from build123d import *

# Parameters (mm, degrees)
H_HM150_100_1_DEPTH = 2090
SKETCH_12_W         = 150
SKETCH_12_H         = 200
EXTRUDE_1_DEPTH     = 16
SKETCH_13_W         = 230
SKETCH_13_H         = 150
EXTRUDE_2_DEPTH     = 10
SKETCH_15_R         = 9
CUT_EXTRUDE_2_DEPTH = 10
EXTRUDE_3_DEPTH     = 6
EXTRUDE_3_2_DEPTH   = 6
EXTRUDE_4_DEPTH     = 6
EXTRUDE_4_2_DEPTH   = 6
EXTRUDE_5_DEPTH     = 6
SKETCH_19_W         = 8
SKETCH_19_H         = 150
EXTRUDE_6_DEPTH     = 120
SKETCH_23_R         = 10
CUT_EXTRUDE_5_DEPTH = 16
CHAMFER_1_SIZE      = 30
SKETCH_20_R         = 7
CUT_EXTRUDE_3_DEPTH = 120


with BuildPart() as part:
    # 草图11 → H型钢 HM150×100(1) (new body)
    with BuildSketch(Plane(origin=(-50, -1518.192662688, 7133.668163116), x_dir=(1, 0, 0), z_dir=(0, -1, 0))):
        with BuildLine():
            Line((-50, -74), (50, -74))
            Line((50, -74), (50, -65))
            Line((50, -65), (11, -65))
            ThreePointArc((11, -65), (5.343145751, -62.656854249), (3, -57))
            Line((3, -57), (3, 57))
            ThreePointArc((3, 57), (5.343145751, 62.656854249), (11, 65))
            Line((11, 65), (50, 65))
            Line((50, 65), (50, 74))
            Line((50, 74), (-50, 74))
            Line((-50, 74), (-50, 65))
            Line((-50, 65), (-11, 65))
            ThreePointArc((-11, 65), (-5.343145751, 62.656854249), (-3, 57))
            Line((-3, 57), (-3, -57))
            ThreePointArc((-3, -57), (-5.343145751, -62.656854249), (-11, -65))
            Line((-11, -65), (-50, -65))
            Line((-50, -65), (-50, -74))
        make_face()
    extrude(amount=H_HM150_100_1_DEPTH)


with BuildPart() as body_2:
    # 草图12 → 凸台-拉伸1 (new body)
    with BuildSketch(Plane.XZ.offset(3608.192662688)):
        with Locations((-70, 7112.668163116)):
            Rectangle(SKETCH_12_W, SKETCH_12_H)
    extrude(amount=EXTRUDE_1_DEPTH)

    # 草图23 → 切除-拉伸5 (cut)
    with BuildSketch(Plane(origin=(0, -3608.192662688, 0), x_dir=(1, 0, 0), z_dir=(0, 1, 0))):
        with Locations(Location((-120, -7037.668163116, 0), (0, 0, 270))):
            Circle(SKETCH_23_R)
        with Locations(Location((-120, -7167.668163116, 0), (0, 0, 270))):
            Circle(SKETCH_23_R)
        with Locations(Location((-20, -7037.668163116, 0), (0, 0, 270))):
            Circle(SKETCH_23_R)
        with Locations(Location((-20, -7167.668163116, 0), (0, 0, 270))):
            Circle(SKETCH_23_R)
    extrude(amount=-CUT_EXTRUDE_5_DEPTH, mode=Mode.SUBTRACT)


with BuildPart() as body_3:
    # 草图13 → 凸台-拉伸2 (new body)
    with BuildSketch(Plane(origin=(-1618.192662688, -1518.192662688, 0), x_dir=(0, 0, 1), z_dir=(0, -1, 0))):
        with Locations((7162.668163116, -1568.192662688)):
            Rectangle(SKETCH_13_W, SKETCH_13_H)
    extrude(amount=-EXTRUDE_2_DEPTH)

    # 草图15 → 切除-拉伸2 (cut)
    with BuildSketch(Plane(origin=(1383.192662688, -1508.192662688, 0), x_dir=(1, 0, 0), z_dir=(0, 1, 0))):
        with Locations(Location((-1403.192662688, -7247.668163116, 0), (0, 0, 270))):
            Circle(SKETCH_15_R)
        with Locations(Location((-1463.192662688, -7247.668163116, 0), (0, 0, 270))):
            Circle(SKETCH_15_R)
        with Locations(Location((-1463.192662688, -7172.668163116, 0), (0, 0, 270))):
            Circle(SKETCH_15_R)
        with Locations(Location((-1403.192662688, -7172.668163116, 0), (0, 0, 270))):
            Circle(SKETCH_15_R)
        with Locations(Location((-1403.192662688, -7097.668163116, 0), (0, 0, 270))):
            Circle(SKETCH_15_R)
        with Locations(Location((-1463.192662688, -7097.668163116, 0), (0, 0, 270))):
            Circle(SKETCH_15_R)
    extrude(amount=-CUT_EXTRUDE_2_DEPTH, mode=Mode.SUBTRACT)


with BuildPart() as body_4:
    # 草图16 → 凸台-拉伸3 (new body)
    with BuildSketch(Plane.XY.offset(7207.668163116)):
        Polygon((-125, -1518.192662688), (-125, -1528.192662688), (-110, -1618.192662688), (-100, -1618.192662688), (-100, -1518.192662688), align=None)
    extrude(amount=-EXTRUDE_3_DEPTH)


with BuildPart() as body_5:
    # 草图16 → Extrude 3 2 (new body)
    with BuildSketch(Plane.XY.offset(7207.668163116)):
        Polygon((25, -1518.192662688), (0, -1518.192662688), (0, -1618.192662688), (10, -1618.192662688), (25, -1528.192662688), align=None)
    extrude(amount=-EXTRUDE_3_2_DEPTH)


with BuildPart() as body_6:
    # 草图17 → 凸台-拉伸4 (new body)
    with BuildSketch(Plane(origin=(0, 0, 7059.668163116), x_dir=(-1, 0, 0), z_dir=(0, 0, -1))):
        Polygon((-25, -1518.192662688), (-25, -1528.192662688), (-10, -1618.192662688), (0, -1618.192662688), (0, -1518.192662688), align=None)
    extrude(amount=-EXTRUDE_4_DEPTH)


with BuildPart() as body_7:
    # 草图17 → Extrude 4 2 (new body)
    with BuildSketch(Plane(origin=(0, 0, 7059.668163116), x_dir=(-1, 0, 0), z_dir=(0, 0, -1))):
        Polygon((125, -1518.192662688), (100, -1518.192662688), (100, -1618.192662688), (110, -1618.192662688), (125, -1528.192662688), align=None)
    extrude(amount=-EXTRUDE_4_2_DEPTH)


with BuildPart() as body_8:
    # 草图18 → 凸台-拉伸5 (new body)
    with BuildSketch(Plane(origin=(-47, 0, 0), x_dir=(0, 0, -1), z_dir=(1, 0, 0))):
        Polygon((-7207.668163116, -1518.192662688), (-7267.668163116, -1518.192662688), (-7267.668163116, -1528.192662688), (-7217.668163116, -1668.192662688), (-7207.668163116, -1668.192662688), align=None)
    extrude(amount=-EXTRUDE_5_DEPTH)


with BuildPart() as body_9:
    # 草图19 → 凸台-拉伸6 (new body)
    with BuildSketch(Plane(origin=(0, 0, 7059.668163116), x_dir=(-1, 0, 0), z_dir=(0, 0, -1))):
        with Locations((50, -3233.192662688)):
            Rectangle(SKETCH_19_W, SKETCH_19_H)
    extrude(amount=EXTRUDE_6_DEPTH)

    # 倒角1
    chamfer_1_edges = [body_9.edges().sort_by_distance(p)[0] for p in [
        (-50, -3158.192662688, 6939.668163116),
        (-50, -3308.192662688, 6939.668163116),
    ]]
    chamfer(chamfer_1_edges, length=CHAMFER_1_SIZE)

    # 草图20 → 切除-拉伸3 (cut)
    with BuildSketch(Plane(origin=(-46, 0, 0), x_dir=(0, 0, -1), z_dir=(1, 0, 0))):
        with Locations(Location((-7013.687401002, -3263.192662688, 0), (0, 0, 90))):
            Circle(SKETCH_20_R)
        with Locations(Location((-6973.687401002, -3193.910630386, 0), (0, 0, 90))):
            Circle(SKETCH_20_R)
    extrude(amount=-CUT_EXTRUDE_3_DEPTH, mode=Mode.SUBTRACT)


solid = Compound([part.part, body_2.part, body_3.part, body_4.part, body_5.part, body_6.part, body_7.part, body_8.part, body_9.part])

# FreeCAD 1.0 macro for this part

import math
import FreeCAD as App
import Part
import Sketcher


def edges_at(feature, points):
    """Names of the edges that pass closest to the given points."""
    edges = feature.Shape.Edges
    near = lambda p: min(range(len(edges)), key=lambda i: edges[i].distToShape(Part.Vertex(*p))[0])
    return sorted({f"Edge{near(p) + 1}" for p in points})


def add_polygon(sketch, points):
    """Adds a closed chain of lines whose ends are joined by coincident constraints."""
    first, n = sketch.GeometryCount, len(points)
    for a, b in zip(points, points[1:] + points[:1]):
        sketch.addGeometry(Part.LineSegment(App.Vector(*a, 0), App.Vector(*b, 0)), False)
    for i in range(n):
        sketch.addConstraint(Sketcher.Constraint("Coincident", first + i, 2, first + (i + 1) % n, 1))

doc = App.newDocument("Part")
body = doc.addObject("PartDesign::Body", "Body")

sketch1 = doc.addObject("Sketcher::SketchObject", "Sketch")
body.addObject(sketch1)
sketch1.AttachmentSupport = (doc.XZ_Plane, [""])
sketch1.MapMode = "FlatFace"
sketch1.AttachmentOffset = App.Placement(App.Vector(0, 0, 1518.192663), App.Rotation())
sketch1.addGeometry(Part.LineSegment(App.Vector(-100, 7060, 0), App.Vector(0, 7060, 0)), False)
sketch1.addGeometry(Part.LineSegment(App.Vector(0, 7060, 0), App.Vector(0, 7069, 0)), False)
sketch1.addGeometry(Part.LineSegment(App.Vector(0, 7069, 0), App.Vector(-39, 7069, 0)), False)
sketch1.addGeometry(Part.ArcOfCircle(Part.Circle(App.Vector(-39, 7077, 0), App.Vector(0, 0, 1), 8), math.radians(-180), math.radians(-90)), False)
sketch1.addGeometry(Part.LineSegment(App.Vector(-47, 7077, 0), App.Vector(-47, 7191, 0)), False)
sketch1.addGeometry(Part.ArcOfCircle(Part.Circle(App.Vector(-39, 7191, 0), App.Vector(0, 0, 1), 8), math.radians(90), math.radians(180)), False)
sketch1.addGeometry(Part.LineSegment(App.Vector(-39, 7199, 0), App.Vector(0, 7199, 0)), False)
sketch1.addGeometry(Part.LineSegment(App.Vector(0, 7199, 0), App.Vector(0, 7208, 0)), False)
sketch1.addGeometry(Part.LineSegment(App.Vector(0, 7208, 0), App.Vector(-100, 7208, 0)), False)
sketch1.addGeometry(Part.LineSegment(App.Vector(-100, 7208, 0), App.Vector(-100, 7199, 0)), False)
sketch1.addGeometry(Part.LineSegment(App.Vector(-100, 7199, 0), App.Vector(-61, 7199, 0)), False)
sketch1.addGeometry(Part.ArcOfCircle(Part.Circle(App.Vector(-61, 7191, 0), App.Vector(0, 0, 1), 8), math.radians(0), math.radians(90)), False)
sketch1.addGeometry(Part.LineSegment(App.Vector(-53, 7191, 0), App.Vector(-53, 7077, 0)), False)
sketch1.addGeometry(Part.ArcOfCircle(Part.Circle(App.Vector(-61, 7077, 0), App.Vector(0, 0, 1), 8), math.radians(-90), math.radians(0)), False)
sketch1.addGeometry(Part.LineSegment(App.Vector(-61, 7069, 0), App.Vector(-100, 7069, 0)), False)
sketch1.addGeometry(Part.LineSegment(App.Vector(-100, 7069, 0), App.Vector(-100, 7060, 0)), False)
sketch1.addConstraint(Sketcher.Constraint("Coincident", 0, 2, 1, 1))
sketch1.addConstraint(Sketcher.Constraint("Coincident", 1, 2, 2, 1))
sketch1.addConstraint(Sketcher.Constraint("Tangent", 2, 2, 3, 2))
sketch1.addConstraint(Sketcher.Constraint("Tangent", 3, 1, 4, 1))
sketch1.addConstraint(Sketcher.Constraint("Tangent", 4, 2, 5, 2))
sketch1.addConstraint(Sketcher.Constraint("Tangent", 5, 1, 6, 1))
sketch1.addConstraint(Sketcher.Constraint("Coincident", 6, 2, 7, 1))
sketch1.addConstraint(Sketcher.Constraint("Coincident", 7, 2, 8, 1))
sketch1.addConstraint(Sketcher.Constraint("Coincident", 8, 2, 9, 1))
sketch1.addConstraint(Sketcher.Constraint("Coincident", 9, 2, 10, 1))
sketch1.addConstraint(Sketcher.Constraint("Tangent", 10, 2, 11, 2))
sketch1.addConstraint(Sketcher.Constraint("Tangent", 11, 1, 12, 1))
sketch1.addConstraint(Sketcher.Constraint("Tangent", 12, 2, 13, 2))
sketch1.addConstraint(Sketcher.Constraint("Tangent", 13, 1, 14, 1))
sketch1.addConstraint(Sketcher.Constraint("Coincident", 14, 2, 15, 1))
sketch1.addConstraint(Sketcher.Constraint("Coincident", 15, 2, 0, 1))
sketch1.addConstraint(Sketcher.Constraint("Horizontal", 0))
sketch1.addConstraint(Sketcher.Constraint("Vertical", 1))
sketch1.addConstraint(Sketcher.Constraint("Horizontal", 2))
sketch1.addConstraint(Sketcher.Constraint("Vertical", 4))
sketch1.addConstraint(Sketcher.Constraint("Horizontal", 6))
sketch1.addConstraint(Sketcher.Constraint("Vertical", 7))
sketch1.addConstraint(Sketcher.Constraint("Horizontal", 8))
sketch1.addConstraint(Sketcher.Constraint("Vertical", 9))
sketch1.addConstraint(Sketcher.Constraint("Horizontal", 10))
sketch1.addConstraint(Sketcher.Constraint("Vertical", 12))
sketch1.addConstraint(Sketcher.Constraint("Horizontal", 14))
sketch1.addConstraint(Sketcher.Constraint("Vertical", 15))
sketch1.addConstraint(Sketcher.Constraint("Equal", 3, 5))
sketch1.addConstraint(Sketcher.Constraint("Equal", 5, 11))
sketch1.addConstraint(Sketcher.Constraint("Equal", 11, 13))
sketch1.addConstraint(Sketcher.Constraint("PointOnObject", 0, 2, -2))
sketch1.addConstraint(Sketcher.Constraint("PointOnObject", 6, 2, -2))
sketch1.addConstraint(Sketcher.Constraint("Horizontal", 5, 3, 11, 3))
sketch1.addConstraint(Sketcher.Constraint("Horizontal", 3, 3, 13, 3))
sketch1.addConstraint(Sketcher.Constraint("Vertical", 9, 2, 14, 2))
sketch1.addConstraint(Sketcher.Constraint("Equal", 6, 10))
sketch1.addConstraint(Sketcher.Constraint("Equal", 1, 7))
sketch1.addConstraint(Sketcher.Constraint("Radius", 3, 8.0))
sketch1.addConstraint(Sketcher.Constraint("DistanceX", 0, 1, 0, 2, 100.0))
sketch1.addConstraint(Sketcher.Constraint("DistanceX", 2, 2, 2, 1, 39.0))
sketch1.addConstraint(Sketcher.Constraint("DistanceY", 1, 1, 1, 2, 9.0))
sketch1.addConstraint(Sketcher.Constraint("DistanceY", 4, 1, 4, 2, 114.0))
sketch1.addConstraint(Sketcher.Constraint("DistanceY", -1, 1, 3, 3, 7076.668163))
pad1 = doc.addObject("PartDesign::Pad", "Pad")
body.addObject(pad1)
pad1.Profile = sketch1
pad1.Length = 2090
body2 = doc.addObject("PartDesign::Body", "Body001")

sketch2 = doc.addObject("Sketcher::SketchObject", "Sketch001")
body2.addObject(sketch2)
sketch2.AttachmentSupport = (doc.getObject("XZ_Plane001"), [""])
sketch2.MapMode = "FlatFace"
sketch2.AttachmentOffset = App.Placement(App.Vector(0, 0, 3608.192663), App.Rotation())
add_polygon(sketch2, [(-145, 7213), (-145, 7013), (5, 7013), (5, 7213)])
sketch2.addConstraint(Sketcher.Constraint("Vertical", 0))
sketch2.addConstraint(Sketcher.Constraint("Horizontal", 1))
sketch2.addConstraint(Sketcher.Constraint("Vertical", 2))
sketch2.addConstraint(Sketcher.Constraint("Horizontal", 3))
sketch2.addConstraint(Sketcher.Constraint("DistanceX", 1, 1, 1, 2, 150.0))
sketch2.addConstraint(Sketcher.Constraint("DistanceY", 0, 2, 0, 1, 200.0))
sketch2.addConstraint(Sketcher.Constraint("DistanceX", 0, 2, -1, 1, 145.0))
sketch2.addConstraint(Sketcher.Constraint("DistanceY", -1, 1, 0, 2, 7012.668163))
pad2 = doc.addObject("PartDesign::Pad", "Pad001")
body2.addObject(pad2)
pad2.Profile = sketch2
pad2.Length = 16

sketch3 = doc.addObject("Sketcher::SketchObject", "Sketch002")
body2.addObject(sketch3)
sketch3.AttachmentSupport = (doc.getObject("XZ_Plane001"), [""])
sketch3.MapMode = "FlatFace"
sketch3.AttachmentOffset = App.Placement(App.Vector(0, 0, 3608.192663), App.Rotation())
sketch3.addGeometry(Part.Circle(App.Vector(-120, 7038, 0), App.Vector(0, 0, 1), 10), False)
sketch3.addGeometry(Part.Circle(App.Vector(-120, 7168, 0), App.Vector(0, 0, 1), 10), False)
sketch3.addGeometry(Part.Circle(App.Vector(-20, 7038, 0), App.Vector(0, 0, 1), 10), False)
sketch3.addGeometry(Part.Circle(App.Vector(-20, 7168, 0), App.Vector(0, 0, 1), 10), False)
sketch3.addConstraint(Sketcher.Constraint("Equal", 0, 1))
sketch3.addConstraint(Sketcher.Constraint("Equal", 1, 2))
sketch3.addConstraint(Sketcher.Constraint("Equal", 2, 3))
sketch3.addConstraint(Sketcher.Constraint("Horizontal", 0, 3, 2, 3))
sketch3.addConstraint(Sketcher.Constraint("Horizontal", 1, 3, 3, 3))
sketch3.addConstraint(Sketcher.Constraint("Vertical", 0, 3, 1, 3))
sketch3.addConstraint(Sketcher.Constraint("Vertical", 2, 3, 3, 3))
sketch3.addConstraint(Sketcher.Constraint("Diameter", 0, 20.0))
sketch3.addConstraint(Sketcher.Constraint("DistanceX", 0, 3, -1, 1, 120.0))
sketch3.addConstraint(Sketcher.Constraint("DistanceX", 2, 3, -1, 1, 20.0))
sketch3.addConstraint(Sketcher.Constraint("DistanceY", 0, 3, 1, 3, 130.0))
sketch3.addConstraint(Sketcher.Constraint("DistanceY", -1, 1, 0, 3, 7037.668163))
pocket1 = doc.addObject("PartDesign::Pocket", "Pocket")
body2.addObject(pocket1)
pocket1.Profile = sketch3
pocket1.Length = 16
pocket1.Reversed = True
body3 = doc.addObject("PartDesign::Body", "Body002")

sketch4 = doc.addObject("Sketcher::SketchObject", "Sketch003")
body3.addObject(sketch4)
sketch4.AttachmentSupport = (doc.getObject("XZ_Plane002"), [""])
sketch4.MapMode = "FlatFace"
sketch4.AttachmentOffset = App.Placement(App.Vector(0, 0, 1518.192663), App.Rotation())
add_polygon(sketch4, [(-125, 7048), (25, 7048), (25, 7278), (-125, 7278)])
sketch4.addConstraint(Sketcher.Constraint("Horizontal", 0))
sketch4.addConstraint(Sketcher.Constraint("Vertical", 1))
sketch4.addConstraint(Sketcher.Constraint("Horizontal", 2))
sketch4.addConstraint(Sketcher.Constraint("Vertical", 3))
sketch4.addConstraint(Sketcher.Constraint("DistanceX", 0, 1, 0, 2, 150.0))
sketch4.addConstraint(Sketcher.Constraint("DistanceY", 1, 1, 1, 2, 230.0))
sketch4.addConstraint(Sketcher.Constraint("DistanceX", -1, 1, 0, 2, 25.0))
sketch4.addConstraint(Sketcher.Constraint("DistanceY", -1, 1, 0, 2, 7047.668163))
pad3 = doc.addObject("PartDesign::Pad", "Pad002")
body3.addObject(pad3)
pad3.Profile = sketch4
pad3.Length = 10
pad3.Reversed = True

sketch5 = doc.addObject("Sketcher::SketchObject", "Sketch004")
body3.addObject(sketch5)
sketch5.AttachmentSupport = (doc.getObject("XZ_Plane002"), [""])
sketch5.MapMode = "FlatFace"
sketch5.AttachmentOffset = App.Placement(App.Vector(0, 0, 1508.192663), App.Rotation())
sketch5.addGeometry(Part.Circle(App.Vector(-20, 7248, 0), App.Vector(0, 0, 1), 9), False)
sketch5.addGeometry(Part.Circle(App.Vector(-80, 7248, 0), App.Vector(0, 0, 1), 9), False)
sketch5.addGeometry(Part.Circle(App.Vector(-80, 7173, 0), App.Vector(0, 0, 1), 9), False)
sketch5.addGeometry(Part.Circle(App.Vector(-20, 7173, 0), App.Vector(0, 0, 1), 9), False)
sketch5.addGeometry(Part.Circle(App.Vector(-20, 7098, 0), App.Vector(0, 0, 1), 9), False)
sketch5.addGeometry(Part.Circle(App.Vector(-80, 7098, 0), App.Vector(0, 0, 1), 9), False)
sketch5.addConstraint(Sketcher.Constraint("Equal", 0, 1))
sketch5.addConstraint(Sketcher.Constraint("Equal", 1, 2))
sketch5.addConstraint(Sketcher.Constraint("Equal", 2, 3))
sketch5.addConstraint(Sketcher.Constraint("Equal", 3, 4))
sketch5.addConstraint(Sketcher.Constraint("Equal", 4, 5))
sketch5.addConstraint(Sketcher.Constraint("Horizontal", 0, 3, 1, 3))
sketch5.addConstraint(Sketcher.Constraint("Horizontal", 2, 3, 3, 3))
sketch5.addConstraint(Sketcher.Constraint("Horizontal", 4, 3, 5, 3))
sketch5.addConstraint(Sketcher.Constraint("Vertical", 1, 3, 2, 3))
sketch5.addConstraint(Sketcher.Constraint("Vertical", 0, 3, 3, 3))
sketch5.addConstraint(Sketcher.Constraint("Vertical", 3, 3, 4, 3))
sketch5.addConstraint(Sketcher.Constraint("Vertical", 2, 3, 5, 3))
sketch5.addConstraint(Sketcher.Constraint("Diameter", 0, 18.0))
sketch5.addConstraint(Sketcher.Constraint("DistanceX", 0, 3, -1, 1, 20.0))
sketch5.addConstraint(Sketcher.Constraint("DistanceX", 1, 3, -1, 1, 80.0))
sketch5.addConstraint(Sketcher.Constraint("DistanceY", 2, 3, 1, 3, 75.0))
sketch5.addConstraint(Sketcher.Constraint("DistanceY", 4, 3, 3, 3, 75.0))
sketch5.addConstraint(Sketcher.Constraint("DistanceY", -1, 1, 0, 3, 7247.668163))
pocket2 = doc.addObject("PartDesign::Pocket", "Pocket001")
body3.addObject(pocket2)
pocket2.Profile = sketch5
pocket2.Length = 10
pocket2.Reversed = True
body4 = doc.addObject("PartDesign::Body", "Body003")

sketch6 = doc.addObject("Sketcher::SketchObject", "Sketch005")
body4.addObject(sketch6)
sketch6.AttachmentSupport = (doc.getObject("XY_Plane003"), [""])
sketch6.MapMode = "FlatFace"
sketch6.AttachmentOffset = App.Placement(App.Vector(0, 0, 7207.668163), App.Rotation())
add_polygon(sketch6, [(-125, -1518), (-125, -1528), (-110, -1618), (-100, -1618), (-100, -1518)])
sketch6.addConstraint(Sketcher.Constraint("Vertical", 0))
sketch6.addConstraint(Sketcher.Constraint("Horizontal", 2))
sketch6.addConstraint(Sketcher.Constraint("Vertical", 3))
sketch6.addConstraint(Sketcher.Constraint("Horizontal", 4))
sketch6.addConstraint(Sketcher.Constraint("Equal", 2, 0))
sketch6.addConstraint(Sketcher.Constraint("DistanceX", 2, 1, 2, 2, 10.0))
sketch6.addConstraint(Sketcher.Constraint("DistanceX", 4, 2, 4, 1, 25.0))
sketch6.addConstraint(Sketcher.Constraint("DistanceY", 3, 1, 3, 2, 100.0))
sketch6.addConstraint(Sketcher.Constraint("DistanceX", 0, 2, -1, 1, 125.0))
sketch6.addConstraint(Sketcher.Constraint("DistanceY", 0, 2, -1, 1, 1528.192663))
pad4 = doc.addObject("PartDesign::Pad", "Pad003")
body4.addObject(pad4)
pad4.Profile = sketch6
pad4.Length = 6
pad4.Reversed = True
body5 = doc.addObject("PartDesign::Body", "Body004")

sketch7 = doc.addObject("Sketcher::SketchObject", "Sketch006")
body5.addObject(sketch7)
sketch7.AttachmentSupport = (doc.getObject("XY_Plane004"), [""])
sketch7.MapMode = "FlatFace"
sketch7.AttachmentOffset = App.Placement(App.Vector(0, 0, 7207.668163), App.Rotation())
add_polygon(sketch7, [(25, -1518), (0, -1518), (0, -1618), (10, -1618), (25, -1528)])
sketch7.addConstraint(Sketcher.Constraint("Horizontal", 0))
sketch7.addConstraint(Sketcher.Constraint("Vertical", 1))
sketch7.addConstraint(Sketcher.Constraint("Horizontal", 2))
sketch7.addConstraint(Sketcher.Constraint("Vertical", 4))
sketch7.addConstraint(Sketcher.Constraint("PointOnObject", 0, 2, -2))
sketch7.addConstraint(Sketcher.Constraint("Equal", 2, 4))
sketch7.addConstraint(Sketcher.Constraint("DistanceX", 0, 2, 0, 1, 25.0))
sketch7.addConstraint(Sketcher.Constraint("DistanceX", 2, 1, 2, 2, 10.0))
sketch7.addConstraint(Sketcher.Constraint("DistanceY", 1, 2, 1, 1, 100.0))
sketch7.addConstraint(Sketcher.Constraint("DistanceY", 0, 2, -1, 1, 1518.192663))
pad5 = doc.addObject("PartDesign::Pad", "Pad004")
body5.addObject(pad5)
pad5.Profile = sketch7
pad5.Length = 6
pad5.Reversed = True
body6 = doc.addObject("PartDesign::Body", "Body005")

sketch8 = doc.addObject("Sketcher::SketchObject", "Sketch007")
body6.addObject(sketch8)
sketch8.AttachmentSupport = (doc.getObject("XY_Plane005"), [""])
sketch8.MapMode = "FlatFace"
sketch8.AttachmentOffset = App.Placement(App.Vector(0, 0, 7059.668163), App.Rotation())
add_polygon(sketch8, [(25, -1518), (25, -1528), (10, -1618), (0, -1618), (0, -1518)])
sketch8.addConstraint(Sketcher.Constraint("Vertical", 0))
sketch8.addConstraint(Sketcher.Constraint("Horizontal", 2))
sketch8.addConstraint(Sketcher.Constraint("Vertical", 3))
sketch8.addConstraint(Sketcher.Constraint("Horizontal", 4))
sketch8.addConstraint(Sketcher.Constraint("PointOnObject", 2, 2, -2))
sketch8.addConstraint(Sketcher.Constraint("Equal", 2, 0))
sketch8.addConstraint(Sketcher.Constraint("DistanceX", 2, 2, 2, 1, 10.0))
sketch8.addConstraint(Sketcher.Constraint("DistanceX", 4, 1, 4, 2, 25.0))
sketch8.addConstraint(Sketcher.Constraint("DistanceY", 3, 1, 3, 2, 100.0))
sketch8.addConstraint(Sketcher.Constraint("DistanceY", 0, 2, -1, 1, 1528.192663))
pad6 = doc.addObject("PartDesign::Pad", "Pad005")
body6.addObject(pad6)
pad6.Profile = sketch8
pad6.Length = 6
body7 = doc.addObject("PartDesign::Body", "Body006")

sketch9 = doc.addObject("Sketcher::SketchObject", "Sketch008")
body7.addObject(sketch9)
sketch9.AttachmentSupport = (doc.getObject("XY_Plane006"), [""])
sketch9.MapMode = "FlatFace"
sketch9.AttachmentOffset = App.Placement(App.Vector(0, 0, 7059.668163), App.Rotation())
add_polygon(sketch9, [(-125, -1518), (-100, -1518), (-100, -1618), (-110, -1618), (-125, -1528)])
sketch9.addConstraint(Sketcher.Constraint("Horizontal", 0))
sketch9.addConstraint(Sketcher.Constraint("Vertical", 1))
sketch9.addConstraint(Sketcher.Constraint("Horizontal", 2))
sketch9.addConstraint(Sketcher.Constraint("Vertical", 4))
sketch9.addConstraint(Sketcher.Constraint("Equal", 2, 4))
sketch9.addConstraint(Sketcher.Constraint("DistanceX", 0, 1, 0, 2, 25.0))
sketch9.addConstraint(Sketcher.Constraint("DistanceX", 2, 2, 2, 1, 10.0))
sketch9.addConstraint(Sketcher.Constraint("DistanceY", 1, 2, 1, 1, 100.0))
sketch9.addConstraint(Sketcher.Constraint("DistanceX", 0, 2, -1, 1, 100.0))
sketch9.addConstraint(Sketcher.Constraint("DistanceY", 0, 2, -1, 1, 1518.192663))
pad7 = doc.addObject("PartDesign::Pad", "Pad006")
body7.addObject(pad7)
pad7.Profile = sketch9
pad7.Length = 6
body8 = doc.addObject("PartDesign::Body", "Body007")

sketch10 = doc.addObject("Sketcher::SketchObject", "Sketch009")
body8.addObject(sketch10)
sketch10.AttachmentSupport = (doc.getObject("YZ_Plane007"), [""])
sketch10.MapMode = "FlatFace"
sketch10.AttachmentOffset = App.Placement(App.Vector(0, 0, -47), App.Rotation())
add_polygon(sketch10, [(-1518, 7208), (-1518, 7268), (-1528, 7268), (-1668, 7218), (-1668, 7208)])
sketch10.addConstraint(Sketcher.Constraint("Vertical", 0))
sketch10.addConstraint(Sketcher.Constraint("Horizontal", 1))
sketch10.addConstraint(Sketcher.Constraint("Vertical", 3))
sketch10.addConstraint(Sketcher.Constraint("Horizontal", 4))
sketch10.addConstraint(Sketcher.Constraint("Equal", 1, 3))
sketch10.addConstraint(Sketcher.Constraint("DistanceX", 1, 2, 1, 1, 10.0))
sketch10.addConstraint(Sketcher.Constraint("DistanceX", 4, 1, 4, 2, 150.0))
sketch10.addConstraint(Sketcher.Constraint("DistanceY", 0, 1, 0, 2, 60.0))
sketch10.addConstraint(Sketcher.Constraint("DistanceX", 0, 2, -1, 1, 1518.192663))
sketch10.addConstraint(Sketcher.Constraint("DistanceY", -1, 1, 0, 2, 7267.668163))
pad8 = doc.addObject("PartDesign::Pad", "Pad007")
body8.addObject(pad8)
pad8.Profile = sketch10
pad8.Length = 6
pad8.Reversed = True
body9 = doc.addObject("PartDesign::Body", "Body008")

sketch11 = doc.addObject("Sketcher::SketchObject", "Sketch010")
body9.addObject(sketch11)
sketch11.AttachmentSupport = (doc.getObject("XY_Plane008"), [""])
sketch11.MapMode = "FlatFace"
sketch11.AttachmentOffset = App.Placement(App.Vector(0, 0, 7059.668163), App.Rotation())
add_polygon(sketch11, [(-46, -3158), (-46, -3308), (-54, -3308), (-54, -3158)])
sketch11.addConstraint(Sketcher.Constraint("Vertical", 0))
sketch11.addConstraint(Sketcher.Constraint("Horizontal", 1))
sketch11.addConstraint(Sketcher.Constraint("Vertical", 2))
sketch11.addConstraint(Sketcher.Constraint("Horizontal", 3))
sketch11.addConstraint(Sketcher.Constraint("DistanceX", 1, 2, 1, 1, 8.0))
sketch11.addConstraint(Sketcher.Constraint("DistanceY", 0, 2, 0, 1, 150.0))
sketch11.addConstraint(Sketcher.Constraint("DistanceX", 0, 2, -1, 1, 46.0))
sketch11.addConstraint(Sketcher.Constraint("DistanceY", 0, 2, -1, 1, 3308.192663))
pad9 = doc.addObject("PartDesign::Pad", "Pad008")
body9.addObject(pad9)
pad9.Profile = sketch11
pad9.Length = 120
pad9.Reversed = True
doc.recompute()

chamfer = doc.addObject("PartDesign::Chamfer", "Chamfer")
body9.addObject(chamfer)
chamfer.Base = (pad9, edges_at(pad9, [(-50, -3158.193, 6939.668), (-50, -3308.193, 6939.668)]))
chamfer.Size = 30

sketch12 = doc.addObject("Sketcher::SketchObject", "Sketch011")
body9.addObject(sketch12)
sketch12.AttachmentSupport = (doc.getObject("YZ_Plane008"), [""])
sketch12.MapMode = "FlatFace"
sketch12.AttachmentOffset = App.Placement(App.Vector(0, 0, -46), App.Rotation())
sketch12.addGeometry(Part.Circle(App.Vector(-3263, 7014, 0), App.Vector(0, 0, 1), 7), False)
sketch12.addGeometry(Part.Circle(App.Vector(-3194, 6974, 0), App.Vector(0, 0, 1), 7), False)
sketch12.addConstraint(Sketcher.Constraint("Equal", 0, 1))
sketch12.addConstraint(Sketcher.Constraint("Diameter", 0, 14.0))
sketch12.addConstraint(Sketcher.Constraint("DistanceY", 1, 3, 0, 3, 40.0))
sketch12.addConstraint(Sketcher.Constraint("DistanceY", -1, 1, 0, 3, 7013.687401))
sketch12.addConstraint(Sketcher.Constraint("DistanceX", 1, 3, -1, 1, 3193.91063))
sketch12.addConstraint(Sketcher.Constraint("DistanceX", 0, 3, -1, 1, 3263.192663))
pocket3 = doc.addObject("PartDesign::Pocket", "Pocket002")
body9.addObject(pocket3)
pocket3.Profile = sketch12
pocket3.Length = 120

doc.recompute()
